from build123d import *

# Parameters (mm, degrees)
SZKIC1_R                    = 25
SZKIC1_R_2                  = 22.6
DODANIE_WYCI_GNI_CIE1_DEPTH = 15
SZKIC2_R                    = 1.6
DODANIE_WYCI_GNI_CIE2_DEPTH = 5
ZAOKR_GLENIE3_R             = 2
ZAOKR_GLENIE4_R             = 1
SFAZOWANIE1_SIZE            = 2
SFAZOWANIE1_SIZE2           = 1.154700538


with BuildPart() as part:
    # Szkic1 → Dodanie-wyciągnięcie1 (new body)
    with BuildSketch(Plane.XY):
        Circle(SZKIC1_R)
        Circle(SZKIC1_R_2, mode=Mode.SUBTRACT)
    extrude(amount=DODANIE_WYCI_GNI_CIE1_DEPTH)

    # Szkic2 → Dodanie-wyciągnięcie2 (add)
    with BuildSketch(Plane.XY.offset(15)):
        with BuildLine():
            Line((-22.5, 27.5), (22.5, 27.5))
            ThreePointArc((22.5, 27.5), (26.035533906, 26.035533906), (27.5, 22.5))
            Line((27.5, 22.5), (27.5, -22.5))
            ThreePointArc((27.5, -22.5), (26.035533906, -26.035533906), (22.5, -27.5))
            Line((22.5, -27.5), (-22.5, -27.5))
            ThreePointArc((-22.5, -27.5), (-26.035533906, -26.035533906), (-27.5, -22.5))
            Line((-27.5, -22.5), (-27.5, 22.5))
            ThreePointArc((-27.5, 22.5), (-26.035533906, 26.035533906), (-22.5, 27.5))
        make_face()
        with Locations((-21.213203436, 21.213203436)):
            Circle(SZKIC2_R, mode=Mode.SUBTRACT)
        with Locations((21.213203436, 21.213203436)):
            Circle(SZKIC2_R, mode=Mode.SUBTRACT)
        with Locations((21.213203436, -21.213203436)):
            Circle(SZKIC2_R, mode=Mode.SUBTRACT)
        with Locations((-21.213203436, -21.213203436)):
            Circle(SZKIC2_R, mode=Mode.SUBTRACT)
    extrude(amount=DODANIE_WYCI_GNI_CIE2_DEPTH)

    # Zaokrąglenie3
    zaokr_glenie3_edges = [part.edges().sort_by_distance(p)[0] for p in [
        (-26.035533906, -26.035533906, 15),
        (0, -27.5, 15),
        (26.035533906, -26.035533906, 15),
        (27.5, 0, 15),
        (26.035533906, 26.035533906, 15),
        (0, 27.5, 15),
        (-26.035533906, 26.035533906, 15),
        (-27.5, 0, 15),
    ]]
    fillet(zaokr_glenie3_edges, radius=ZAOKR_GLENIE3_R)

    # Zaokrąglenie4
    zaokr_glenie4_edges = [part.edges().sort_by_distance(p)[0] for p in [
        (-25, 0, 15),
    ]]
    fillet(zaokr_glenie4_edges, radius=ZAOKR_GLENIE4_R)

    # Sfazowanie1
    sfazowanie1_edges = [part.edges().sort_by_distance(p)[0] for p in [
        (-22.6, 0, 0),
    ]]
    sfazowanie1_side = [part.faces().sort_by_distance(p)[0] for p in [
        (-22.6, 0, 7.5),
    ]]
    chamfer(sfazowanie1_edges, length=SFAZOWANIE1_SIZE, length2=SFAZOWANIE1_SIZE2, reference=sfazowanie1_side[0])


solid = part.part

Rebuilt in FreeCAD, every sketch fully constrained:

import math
import FreeCAD as App
import Part
import Sketcher

V = App.Vector
Q = App.Units.Quantity


def edges_at(feature, points):
    """Names of the edges that pass closest to the given points."""
    edges = feature.Shape.Edges
    near = lambda p: min(range(len(edges)), key=lambda i: edges[i].distToShape(Part.Vertex(*p))[0])
    return sorted({f"Edge{near(p) + 1}" for p in points})

doc = App.newDocument("Part")
body = doc.addObject("PartDesign::Body", "Body")

sketch1 = body.newObject("Sketcher::SketchObject", "Sketch")
sketch1.AttachmentSupport = (doc.getObject("XY_Plane"), [""])
sketch1.MapMode = "FlatFace"
sketch1.addGeometry([
    Part.Circle(V(0, 0, 0), V(0, 0, 1), 25),
    Part.Circle(V(0, 0, 0), V(0, 0, 1), 22.6),
], False)
sketch1.addConstraint([
    Sketcher.Constraint("Coincident", 0, 3, -1, 1),
    Sketcher.Constraint("Coincident", 1, 3, -1, 1),
    Sketcher.Constraint("Diameter", 0, Q("50 mm")),
    Sketcher.Constraint("Diameter", 1, Q("45.2 mm")),
])
pad1 = body.newObject("PartDesign::Pad", "Pad")
pad1.Profile = sketch1
pad1.Length = 15

sketch2 = body.newObject("Sketcher::SketchObject", "Sketch001")
sketch2.AttachmentSupport = (doc.getObject("XY_Plane"), [""])
sketch2.MapMode = "FlatFace"
sketch2.AttachmentOffset = App.Placement(V(0, 0, 15), App.Rotation())
sketch2.addGeometry([
    Part.LineSegment(V(22.5, 27.5, 0), V(-22.5, 27.5, 0)),
    Part.ArcOfCircle(Part.Circle(V(-22.5, 22.5, 0), V(0, 0, 1), 5), math.radians(90), math.radians(180)),
    Part.LineSegment(V(-27.5, 22.5, 0), V(-27.5, -22.5, 0)),
    Part.ArcOfCircle(Part.Circle(V(-22.5, -22.5, 0), V(0, 0, 1), 5), math.radians(180), math.radians(270)),
    Part.LineSegment(V(-22.5, -27.5, 0), V(22.5, -27.5, 0)),
    Part.ArcOfCircle(Part.Circle(V(22.5, -22.5, 0), V(0, 0, 1), 5), math.radians(-90), math.radians(0)),
    Part.LineSegment(V(27.5, -22.5, 0), V(27.5, 22.5, 0)),
    Part.ArcOfCircle(Part.Circle(V(22.5, 22.5, 0), V(0, 0, 1), 5), math.radians(0), math.radians(90)),
    Part.Circle(V(21.213203, -21.213203, 0), V(0, 0, 1), 1.6),
    Part.Circle(V(-21.213203, -21.213203, 0), V(0, 0, 1), 1.6),
    Part.Circle(V(21.213203, 21.213203, 0), V(0, 0, 1), 1.6),
    Part.Circle(V(-21.213203, 21.213203, 0), V(0, 0, 1), 1.6),
], False)
sketch2.addConstraint([
    Sketcher.Constraint("Tangent", 0, 2, 1, 1),
    Sketcher.Constraint("Tangent", 1, 2, 2, 1),
    Sketcher.Constraint("Tangent", 2, 2, 3, 1),
    Sketcher.Constraint("Tangent", 3, 2, 4, 1),
    Sketcher.Constraint("Tangent", 4, 2, 5, 1),
    Sketcher.Constraint("Tangent", 5, 2, 6, 1),
    Sketcher.Constraint("Tangent", 6, 2, 7, 1),
    Sketcher.Constraint("Tangent", 7, 2, 0, 1),
    Sketcher.Constraint("Horizontal", 0),
    Sketcher.Constraint("Vertical", 2),
    Sketcher.Constraint("Horizontal", 4),
    Sketcher.Constraint("Vertical", 6),
    Sketcher.Constraint("Equal", 1, 3),
    Sketcher.Constraint("Equal", 3, 5),
    Sketcher.Constraint("Equal", 5, 7),
    Sketcher.Constraint("Equal", 8, 9),
    Sketcher.Constraint("Equal", 9, 10),
    Sketcher.Constraint("Equal", 10, 11),
    Sketcher.Constraint("Symmetric", 1, 3, 5, 3, -1, 1),
    Sketcher.Constraint("Symmetric", 9, 3, 10, 3, -1, 1),
    Sketcher.Constraint("Symmetric", 8, 3, 11, 3, -1, 1),
    Sketcher.Constraint("Symmetric", 8, 3, 9, 3, -2),
    Sketcher.Constraint("Equal", 4, 2),
    Sketcher.Constraint("Radius", 1, Q("5 mm")),
    Sketcher.Constraint("Diameter", 8, Q("3.2 mm")),
    Sketcher.Constraint("DistanceX", 0, 2, 0, 1, Q("45 mm")),
    Sketcher.Constraint("DistanceX", -1, 1, 8, 3, Q("21.213203 mm")),
    Sketcher.Constraint("DistanceY", 8, 3, -1, 1, Q("21.213203 mm")),
])
pad2 = body.newObject("PartDesign::Pad", "Pad001")
pad2.Profile = sketch2
pad2.Length = 5
doc.recompute()

fillet = body.newObject("PartDesign::Fillet", "Fillet")
fillet.Base = (pad2, edges_at(pad2, [
    (-26.036, -26.036, 15),
    (0, -27.5, 15),
    (26.036, -26.036, 15),
    (27.5, 0, 15),
    (26.036, 26.036, 15),
    (0, 27.5, 15),
    (-26.036, 26.036, 15),
    (-27.5, 0, 15),
]))
fillet.Radius = 2
doc.recompute()

fillet2 = body.newObject("PartDesign::Fillet", "Fillet001")
fillet2.Base = (fillet, edges_at(fillet, [(-25, 0, 15)]))
fillet2.Radius = 1
doc.recompute()

chamfer = body.newObject("PartDesign::Chamfer", "Chamfer")
chamfer.Base = (fillet2, edges_at(fillet2, [(-22.6, 0, 0)]))
chamfer.ChamferType = "Two distances"
chamfer.Size = 2
chamfer.Size2 = 1.154701
chamfer.FlipDirection = True

doc.recompute()
